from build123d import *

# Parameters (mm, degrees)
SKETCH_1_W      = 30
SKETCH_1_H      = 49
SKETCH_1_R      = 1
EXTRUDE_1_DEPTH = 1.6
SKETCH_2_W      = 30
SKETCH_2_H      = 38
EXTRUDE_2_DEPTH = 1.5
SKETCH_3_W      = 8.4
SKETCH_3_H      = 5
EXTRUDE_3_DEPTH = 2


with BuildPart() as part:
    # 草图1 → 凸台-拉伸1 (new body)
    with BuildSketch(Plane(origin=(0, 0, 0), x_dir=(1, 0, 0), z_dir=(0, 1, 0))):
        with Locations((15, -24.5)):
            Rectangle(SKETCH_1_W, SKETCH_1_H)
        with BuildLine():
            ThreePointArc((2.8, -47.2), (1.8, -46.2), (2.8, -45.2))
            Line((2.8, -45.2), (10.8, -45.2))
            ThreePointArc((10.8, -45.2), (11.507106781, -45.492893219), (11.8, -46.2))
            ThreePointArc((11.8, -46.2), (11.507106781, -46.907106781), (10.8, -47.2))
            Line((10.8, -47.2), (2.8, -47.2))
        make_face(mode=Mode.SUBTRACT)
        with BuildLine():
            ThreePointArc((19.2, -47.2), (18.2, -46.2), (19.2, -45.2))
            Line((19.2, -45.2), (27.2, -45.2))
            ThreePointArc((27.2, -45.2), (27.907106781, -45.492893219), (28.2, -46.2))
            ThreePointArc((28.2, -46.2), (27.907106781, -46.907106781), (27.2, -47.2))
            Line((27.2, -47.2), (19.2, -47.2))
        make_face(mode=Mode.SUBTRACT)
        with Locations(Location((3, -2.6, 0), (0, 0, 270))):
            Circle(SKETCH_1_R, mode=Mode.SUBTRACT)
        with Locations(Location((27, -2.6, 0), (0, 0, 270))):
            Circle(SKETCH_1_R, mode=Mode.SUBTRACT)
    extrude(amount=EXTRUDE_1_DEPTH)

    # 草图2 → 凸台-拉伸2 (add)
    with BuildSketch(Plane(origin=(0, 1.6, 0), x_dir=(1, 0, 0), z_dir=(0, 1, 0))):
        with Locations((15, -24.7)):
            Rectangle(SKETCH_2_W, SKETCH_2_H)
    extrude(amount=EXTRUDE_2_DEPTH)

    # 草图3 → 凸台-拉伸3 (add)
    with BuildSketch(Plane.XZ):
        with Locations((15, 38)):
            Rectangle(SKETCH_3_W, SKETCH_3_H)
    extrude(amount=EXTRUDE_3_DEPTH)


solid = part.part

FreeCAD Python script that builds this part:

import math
import FreeCAD as App
import Part
import Sketcher
Q = App.Units.Quantity

doc = App.newDocument("Part")
body = doc.addObject("PartDesign::Body", "Body")

# Sketch on XZ plane
sketch1 = doc.addObject("Sketcher::SketchObject", "Sketch")
body.addObject(sketch1)
sketch1.AttachmentSupport = (doc.XZ_Plane, [""])
sketch1.MapMode = "FlatFace"
sketch1.addGeometry([
    Part.LineSegment(App.Vector(0, 0, 0), App.Vector(0, 49, 0)),  # 0
    Part.LineSegment(App.Vector(0, 49, 0), App.Vector(30, 49, 0)),  # 1
    Part.LineSegment(App.Vector(30, 49, 0), App.Vector(30, 0, 0)),  # 2
    Part.LineSegment(App.Vector(30, 0, 0), App.Vector(0, 0, 0)),  # 3
    Part.LineSegment(App.Vector(10.8, 47.2, 0), App.Vector(2.8, 47.2, 0)),  # 4
    Part.ArcOfCircle(Part.Circle(App.Vector(2.8, 46.2, 0), App.Vector(0, 0, 1), 1), math.radians(90), math.radians(270)),  # 5
    Part.LineSegment(App.Vector(2.8, 45.2, 0), App.Vector(10.8, 45.2, 0)),  # 6
    Part.ArcOfCircle(Part.Circle(App.Vector(10.8, 46.2, 0), App.Vector(0, 0, 1), 1), math.radians(-90), math.radians(0)),  # 7
    Part.ArcOfCircle(Part.Circle(App.Vector(10.8, 46.2, 0), App.Vector(0, 0, 1), 1), math.radians(0), math.radians(90)),  # 8
    Part.LineSegment(App.Vector(27.2, 47.2, 0), App.Vector(19.2, 47.2, 0)),  # 9
    Part.ArcOfCircle(Part.Circle(App.Vector(19.2, 46.2, 0), App.Vector(0, 0, 1), 1), math.radians(90), math.radians(270)),  # 10
    Part.LineSegment(App.Vector(19.2, 45.2, 0), App.Vector(27.2, 45.2, 0)),  # 11
    Part.ArcOfCircle(Part.Circle(App.Vector(27.2, 46.2, 0), App.Vector(0, 0, 1), 1), math.radians(-90), math.radians(0)),  # 12
    Part.ArcOfCircle(Part.Circle(App.Vector(27.2, 46.2, 0), App.Vector(0, 0, 1), 1), math.radians(0), math.radians(90)),  # 13
    Part.Circle(App.Vector(3, 2.6, 0), App.Vector(0, 0, 1), 1),  # 14
    Part.Circle(App.Vector(27, 2.6, 0), App.Vector(0, 0, 1), 1),  # 15
], False)
sketch1.addConstraint([
    Sketcher.Constraint("Coincident", 0, 2, 1, 1),
    Sketcher.Constraint("Coincident", 1, 2, 2, 1),
    Sketcher.Constraint("Coincident", 2, 2, 3, 1),
    Sketcher.Constraint("Coincident", 3, 2, 0, 1),
    Sketcher.Constraint("Tangent", 4, 2, 5, 1),
    Sketcher.Constraint("Tangent", 5, 2, 6, 1),
    Sketcher.Constraint("Tangent", 6, 2, 7, 1),
    Sketcher.Constraint("Tangent", 7, 2, 8, 1),
    Sketcher.Constraint("Tangent", 8, 2, 4, 1),
    Sketcher.Constraint("Tangent", 9, 2, 10, 1),
    Sketcher.Constraint("Tangent", 10, 2, 11, 1),
    Sketcher.Constraint("Tangent", 11, 2, 12, 1),
    Sketcher.Constraint("Tangent", 12, 2, 13, 1),
    Sketcher.Constraint("Tangent", 13, 2, 9, 1),
    Sketcher.Constraint("Vertical", 0),
    Sketcher.Constraint("Horizontal", 1),
    Sketcher.Constraint("Vertical", 2),
    Sketcher.Constraint("Horizontal", 3),
    Sketcher.Constraint("Horizontal", 4),
    Sketcher.Constraint("Horizontal", 6),
    Sketcher.Constraint("Horizontal", 9),
    Sketcher.Constraint("Horizontal", 11),
    Sketcher.Constraint("Coincident", 3, 2, -1, 1),
    Sketcher.Constraint("Equal", 5, 7),
    Sketcher.Constraint("Equal", 8, 10),
    Sketcher.Constraint("Equal", 10, 12),
    Sketcher.Constraint("Equal", 13, 14),
    Sketcher.Constraint("Equal", 14, 15),
    Sketcher.Constraint("Horizontal", 8, 3, 10, 3),
    Sketcher.Constraint("Horizontal", 14, 3, 15, 3),
    Sketcher.Constraint("Horizontal", 13, 3, 7, 2),
    Sketcher.Constraint("Horizontal", 7, 2, 12, 2),
    Sketcher.Constraint("Equal", 6, 9),
    Sketcher.Constraint("Diameter", 14, Q("2 mm")),
    Sketcher.Constraint("DistanceX", 1, 1, 1, 2, Q("30 mm")),
    Sketcher.Constraint("DistanceX", 4, 2, 4, 1, Q("8 mm")),
    Sketcher.Constraint("DistanceY", 0, 1, 0, 2, Q("49 mm")),
    Sketcher.Constraint("DistanceX", -1, 1, 14, 3, Q("3 mm")),
    Sketcher.Constraint("DistanceX", -1, 1, 15, 3, Q("27 mm")),
    Sketcher.Constraint("DistanceX", -1, 1, 5, 3, Q("2.8 mm")),
    Sketcher.Constraint("DistanceY", -1, 1, 5, 3, Q("46.2 mm")),
    Sketcher.Constraint("DistanceX", -1, 1, 10, 3, Q("19.2 mm")),
    Sketcher.Constraint("DistanceY", -1, 1, 14, 3, Q("2.6 mm")),
])
pad1 = doc.addObject("PartDesign::Pad", "Pad")
body.addObject(pad1)
pad1.Profile = sketch1
pad1.Length = 1.6
pad1.Reversed = True

# Sketch on XZ plane
sketch2 = doc.addObject("Sketcher::SketchObject", "Sketch001")
body.addObject(sketch2)
sketch2.AttachmentSupport = (doc.XZ_Plane, [""])
sketch2.MapMode = "FlatFace"
sketch2.AttachmentOffset = App.Placement(App.Vector(0, 0, -1.6), App.Rotation())
sketch2.addGeometry([
    Part.LineSegment(App.Vector(0, 6, 0), App.Vector(0, 44, 0)),
    Part.LineSegment(App.Vector(0, 44, 0), App.Vector(30, 44, 0)),
    Part.LineSegment(App.Vector(30, 44, 0), App.Vector(30, 6, 0)),
    Part.LineSegment(App.Vector(30, 6, 0), App.Vector(0, 6, 0)),
], False)
sketch2.addConstraint([
    Sketcher.Constraint("Coincident", 0, 2, 1, 1),
    Sketcher.Constraint("Coincident", 1, 2, 2, 1),
    Sketcher.Constraint("Coincident", 2, 2, 3, 1),
    Sketcher.Constraint("Coincident", 3, 2, 0, 1),
    Sketcher.Constraint("Vertical", 0),
    Sketcher.Constraint("Horizontal", 1),
    Sketcher.Constraint("Vertical", 2),
    Sketcher.Constraint("Horizontal", 3),
    Sketcher.Constraint("PointOnObject", 0, 2, -2),
    Sketcher.Constraint("DistanceX", 1, 1, 1, 2, Q("30 mm")),
    Sketcher.Constraint("DistanceY", 0, 1, 0, 2, Q("38 mm")),
    Sketcher.Constraint("DistanceY", -1, 1, 0, 2, Q("43.7 mm")),
])
pad2 = doc.addObject("PartDesign::Pad", "Pad001")
body.addObject(pad2)
pad2.Profile = sketch2
pad2.Length = 1.5
pad2.Reversed = True

# Sketch on XZ plane
sketch3 = doc.addObject("Sketcher::SketchObject", "Sketch002")
body.addObject(sketch3)
sketch3.AttachmentSupport = (doc.XZ_Plane, [""])
sketch3.MapMode = "FlatFace"
sketch3.addGeometry([
    Part.LineSegment(App.Vector(11, 40, 0), App.Vector(11, 36, 0)),
    Part.LineSegment(App.Vector(11, 36, 0), App.Vector(19, 36, 0)),
    Part.LineSegment(App.Vector(19, 36, 0), App.Vector(19, 40, 0)),
    Part.LineSegment(App.Vector(19, 40, 0), App.Vector(11, 40, 0)),
], False)
sketch3.addConstraint([
    Sketcher.Constraint("Coincident", 0, 2, 1, 1),
    Sketcher.Constraint("Coincident", 1, 2, 2, 1),
    Sketcher.Constraint("Coincident", 2, 2, 3, 1),
    Sketcher.Constraint("Coincident", 3, 2, 0, 1),
    Sketcher.Constraint("Vertical", 0),
    Sketcher.Constraint("Horizontal", 1),
    Sketcher.Constraint("Vertical", 2),
    Sketcher.Constraint("Horizontal", 3),
    Sketcher.Constraint("DistanceY", 0, 2, 0, 1, Q("5 mm")),
    Sketcher.Constraint("DistanceX", 1, 1, 1, 2, Q("8.4 mm")),
    Sketcher.Constraint("DistanceX", -1, 1, 0, 2, Q("10.8 mm")),
    Sketcher.Constraint("DistanceY", -1, 1, 0, 2, Q("35.5 mm")),
])
pad3 = doc.addObject("PartDesign::Pad", "Pad002")
body.addObject(pad3)
pad3.Profile = sketch3
pad3.Length = 2

doc.recompute()
